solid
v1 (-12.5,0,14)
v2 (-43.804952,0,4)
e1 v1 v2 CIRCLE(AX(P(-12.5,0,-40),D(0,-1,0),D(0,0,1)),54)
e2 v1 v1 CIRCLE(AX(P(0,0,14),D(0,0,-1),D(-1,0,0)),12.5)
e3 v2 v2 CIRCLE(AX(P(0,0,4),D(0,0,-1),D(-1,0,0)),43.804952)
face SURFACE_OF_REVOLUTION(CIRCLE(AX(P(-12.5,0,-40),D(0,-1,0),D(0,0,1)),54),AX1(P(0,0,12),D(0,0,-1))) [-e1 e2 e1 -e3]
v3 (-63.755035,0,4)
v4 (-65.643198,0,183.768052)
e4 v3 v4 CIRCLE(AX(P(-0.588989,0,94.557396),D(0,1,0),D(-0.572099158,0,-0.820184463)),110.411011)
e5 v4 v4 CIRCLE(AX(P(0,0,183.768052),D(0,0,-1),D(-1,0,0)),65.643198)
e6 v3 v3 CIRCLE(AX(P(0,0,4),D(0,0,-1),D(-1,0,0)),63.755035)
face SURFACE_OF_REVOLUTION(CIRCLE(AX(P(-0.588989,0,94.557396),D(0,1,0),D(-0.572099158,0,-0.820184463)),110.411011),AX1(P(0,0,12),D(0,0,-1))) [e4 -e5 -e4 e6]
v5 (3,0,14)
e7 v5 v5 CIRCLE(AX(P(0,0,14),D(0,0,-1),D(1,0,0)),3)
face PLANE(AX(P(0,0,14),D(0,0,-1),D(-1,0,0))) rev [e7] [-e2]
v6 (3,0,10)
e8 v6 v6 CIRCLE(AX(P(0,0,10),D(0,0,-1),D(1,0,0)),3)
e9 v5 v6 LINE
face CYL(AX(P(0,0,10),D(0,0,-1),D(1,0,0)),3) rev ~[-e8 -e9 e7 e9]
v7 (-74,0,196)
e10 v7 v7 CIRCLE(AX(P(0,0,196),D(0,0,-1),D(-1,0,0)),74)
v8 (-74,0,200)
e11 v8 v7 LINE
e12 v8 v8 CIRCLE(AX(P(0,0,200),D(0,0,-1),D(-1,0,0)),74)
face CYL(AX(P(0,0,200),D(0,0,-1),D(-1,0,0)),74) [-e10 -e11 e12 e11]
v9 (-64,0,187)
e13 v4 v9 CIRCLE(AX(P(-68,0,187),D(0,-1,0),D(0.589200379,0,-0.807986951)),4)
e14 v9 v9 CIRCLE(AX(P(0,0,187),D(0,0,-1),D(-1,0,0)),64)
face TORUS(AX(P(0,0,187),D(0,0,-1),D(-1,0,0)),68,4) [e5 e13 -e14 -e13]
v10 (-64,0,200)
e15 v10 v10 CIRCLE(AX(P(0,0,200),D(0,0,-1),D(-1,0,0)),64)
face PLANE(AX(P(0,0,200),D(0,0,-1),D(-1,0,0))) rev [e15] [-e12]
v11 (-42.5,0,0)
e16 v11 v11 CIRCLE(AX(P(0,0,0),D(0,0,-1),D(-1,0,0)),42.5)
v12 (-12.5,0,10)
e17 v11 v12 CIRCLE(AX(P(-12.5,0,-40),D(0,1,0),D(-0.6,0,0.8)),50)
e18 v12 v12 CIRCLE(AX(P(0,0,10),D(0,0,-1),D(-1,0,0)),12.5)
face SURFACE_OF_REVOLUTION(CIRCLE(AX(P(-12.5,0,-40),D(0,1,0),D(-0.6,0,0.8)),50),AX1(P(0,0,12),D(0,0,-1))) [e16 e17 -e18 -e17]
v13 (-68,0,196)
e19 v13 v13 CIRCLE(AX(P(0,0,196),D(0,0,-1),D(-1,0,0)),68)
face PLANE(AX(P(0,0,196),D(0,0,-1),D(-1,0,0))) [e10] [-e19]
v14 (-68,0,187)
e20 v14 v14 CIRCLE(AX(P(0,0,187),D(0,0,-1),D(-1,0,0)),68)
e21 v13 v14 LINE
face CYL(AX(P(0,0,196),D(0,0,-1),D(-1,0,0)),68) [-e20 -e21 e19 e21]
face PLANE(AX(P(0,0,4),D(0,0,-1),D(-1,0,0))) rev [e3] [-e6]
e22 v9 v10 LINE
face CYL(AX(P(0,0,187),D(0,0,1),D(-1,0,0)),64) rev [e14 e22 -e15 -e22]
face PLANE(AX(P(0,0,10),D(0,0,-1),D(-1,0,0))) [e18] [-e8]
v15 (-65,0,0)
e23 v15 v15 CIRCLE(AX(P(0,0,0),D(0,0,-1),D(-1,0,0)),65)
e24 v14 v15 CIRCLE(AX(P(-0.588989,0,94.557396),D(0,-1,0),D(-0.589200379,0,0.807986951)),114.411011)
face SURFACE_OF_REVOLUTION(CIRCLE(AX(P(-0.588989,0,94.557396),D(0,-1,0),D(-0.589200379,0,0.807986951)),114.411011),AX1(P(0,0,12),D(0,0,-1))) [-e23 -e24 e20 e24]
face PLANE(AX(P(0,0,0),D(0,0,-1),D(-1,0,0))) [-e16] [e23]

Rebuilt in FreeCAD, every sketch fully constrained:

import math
import FreeCAD as App
import Part
import Sketcher

V = App.Vector

doc = App.newDocument("Part")
body = doc.addObject("PartDesign::Body", "Body")

# Sketch on XZ plane
sketch1 = body.newObject("Sketcher::SketchObject", "Sketch")
sketch1.AttachmentSupport = (doc.getObject("XZ_Plane"), [""])
sketch1.MapMode = "FlatFace"
sketch1.addGeometry([
    Part.LineSegment(V(-12.5, 10, 0), V(0, 10, 0)),  # 0
    Part.LineSegment(V(0, 10, 0), V(0, 14, 0)),  # 1
    Part.LineSegment(V(0, 14, 0), V(-12.5, 14, 0)),  # 2
    Part.ArcOfCircle(Part.Circle(V(-12.5, -40, 0), V(0, 0, 1), 54), math.radians(90), math.radians(125)),  # 3
    Part.LineSegment(V(-43.8, 4, 0), V(-63.8, 4, 0)),  # 4
    Part.ArcOfCircle(Part.Circle(V(-0.6, 94.6, 0), V(0, 0, 1), 110.4), math.radians(126), math.radians(235)),  # 5
    Part.ArcOfCircle(Part.Circle(V(-68, 187, 0), V(0, 0, 1), 4), math.radians(-54), math.radians(0)),  # 6
    Part.LineSegment(V(-64, 187, 0), V(-64, 200, 0)),  # 7
    Part.LineSegment(V(-64, 200, 0), V(-74, 200, 0)),  # 8
    Part.LineSegment(V(-74, 200, 0), V(-74, 196, 0)),  # 9
    Part.LineSegment(V(-74, 196, 0), V(-68, 196, 0)),  # 10
    Part.LineSegment(V(-68, 196, 0), V(-68, 187, 0)),  # 11
    Part.ArcOfCircle(Part.Circle(V(-0.6, 94.6, 0), V(0, 0, 1), 114.4), math.radians(126), math.radians(236)),  # 12
    Part.LineSegment(V(-65, 0, 0), V(-42.5, 0, 0)),  # 13
    Part.ArcOfCircle(Part.Circle(V(-12.5, -40, 0), V(0, 0, 1), 50), math.radians(90), math.radians(127)),  # 14
], False)
sketch1.addConstraint([
    Sketcher.Constraint("Coincident", 0, 2, 1, 1),
    Sketcher.Constraint("Coincident", 1, 2, 2, 1),
    Sketcher.Constraint("Tangent", 2, 2, 3, 1),
    Sketcher.Constraint("Coincident", 3, 2, 4, 1),
    Sketcher.Constraint("Coincident", 4, 2, 5, 2),
    Sketcher.Constraint("Tangent", 5, 1, 6, 1),
    Sketcher.Constraint("Tangent", 6, 2, 7, 1),
    Sketcher.Constraint("Coincident", 7, 2, 8, 1),
    Sketcher.Constraint("Coincident", 8, 2, 9, 1),
    Sketcher.Constraint("Coincident", 9, 2, 10, 1),
    Sketcher.Constraint("Coincident", 10, 2, 11, 1),
    Sketcher.Constraint("Coincident", 11, 2, 12, 1),
    Sketcher.Constraint("Coincident", 12, 2, 13, 1),
    Sketcher.Constraint("Coincident", 13, 2, 14, 2),
    Sketcher.Constraint("Tangent", 14, 1, 0, 1),
    Sketcher.Constraint("Horizontal", 0),
    Sketcher.Constraint("Vertical", 1),
    Sketcher.Constraint("Horizontal", 2),
    Sketcher.Constraint("Horizontal", 4),
    Sketcher.Constraint("Vertical", 7),
    Sketcher.Constraint("Horizontal", 8),
    Sketcher.Constraint("Vertical", 9),
    Sketcher.Constraint("Horizontal", 10),
    Sketcher.Constraint("Vertical", 11),
    Sketcher.Constraint("Horizontal", 13),
    Sketcher.Constraint("Coincident", 12, 3, 5, 3),
    Sketcher.Constraint("Coincident", 14, 3, 3, 3),
    Sketcher.Constraint("Coincident", 11, 2, 6, 3),
    Sketcher.Constraint("PointOnObject", 0, 2, -2),
    Sketcher.Constraint("PointOnObject", 12, 2, -1),
    Sketcher.Constraint("Equal", 1, 9),
    Sketcher.Constraint("Radius", 3, 54.0),
    Sketcher.Constraint("Radius", 6, 4.0),
    Sketcher.Constraint("Radius", 14, 50.0),
    Sketcher.Constraint("DistanceX", 8, 2, 8, 1, 10.0),
    Sketcher.Constraint("DistanceY", 7, 1, 7, 2, 13.0),
    Sketcher.Constraint("DistanceX", 0, 1, 0, 2, 12.5),
    Sketcher.Constraint("DistanceX", 13, 1, 13, 2, 22.5),
    Sketcher.Constraint("DistanceY", 3, 3, -1, 1, 40.0),
    Sketcher.Constraint("DistanceX", 6, 3, -1, 1, 68.0),
    Sketcher.Constraint("DistanceY", -1, 1, 6, 3, 187.0),
    Sketcher.Constraint("DistanceY", -1, 1, 3, 2, 4.0),
    Sketcher.Constraint("Radius", 5, 110.411011),
])
revolution = body.newObject("PartDesign::Revolution", "Revolution")
revolution.Profile = sketch1
revolution.ReferenceAxis = (sketch1, ["V_Axis"])
revolution.Angle = 360

# Sketch on XY plane
sketch2 = body.newObject("Sketcher::SketchObject", "Sketch001")
sketch2.AttachmentSupport = (doc.getObject("XY_Plane"), [""])
sketch2.MapMode = "FlatFace"
sketch2.AttachmentOffset = App.Placement(V(0, 0, 10), App.Rotation())
sketch2.addGeometry(Part.Circle(V(0, 0, 0), V(0, 0, 1), 3), False)
sketch2.addConstraint([
    Sketcher.Constraint("Coincident", 0, 3, -1, 1),
    Sketcher.Constraint("Diameter", 0, 6.0),
])
pocket1 = body.newObject("PartDesign::Pocket", "Pocket")
pocket1.Profile = sketch2
pocket1.Length = 25
pocket1.Midplane = True

doc.recompute()
